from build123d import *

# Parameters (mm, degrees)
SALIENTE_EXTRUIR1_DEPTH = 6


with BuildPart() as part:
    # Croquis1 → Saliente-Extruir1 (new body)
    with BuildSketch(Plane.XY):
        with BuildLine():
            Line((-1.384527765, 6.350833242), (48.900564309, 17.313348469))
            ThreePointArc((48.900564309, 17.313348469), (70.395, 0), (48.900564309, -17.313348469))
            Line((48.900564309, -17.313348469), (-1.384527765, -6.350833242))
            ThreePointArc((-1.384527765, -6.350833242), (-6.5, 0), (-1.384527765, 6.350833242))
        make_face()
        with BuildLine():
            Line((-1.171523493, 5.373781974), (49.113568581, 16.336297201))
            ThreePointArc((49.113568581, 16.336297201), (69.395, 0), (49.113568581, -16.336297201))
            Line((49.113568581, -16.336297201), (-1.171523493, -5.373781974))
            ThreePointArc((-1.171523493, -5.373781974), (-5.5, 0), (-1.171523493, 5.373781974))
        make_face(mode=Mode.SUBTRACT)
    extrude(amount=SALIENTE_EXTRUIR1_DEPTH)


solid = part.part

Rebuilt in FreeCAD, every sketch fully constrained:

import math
import FreeCAD as App
import Part
import Sketcher

V = App.Vector
Q = App.Units.Quantity

doc = App.newDocument("Part")
body = doc.addObject("PartDesign::Body", "Body")

sketch1 = body.newObject("Sketcher::SketchObject", "Sketch")
sketch1.AttachmentSupport = (doc.getObject("XY_Plane"), [""])
sketch1.MapMode = "FlatFace"
sketch1.addGeometry([
    Part.LineSegment(V(49, 17, 0), V(-1, 6, 0)),
    Part.ArcOfCircle(Part.Circle(V(0, 0, 0), V(0, 0, 1), 6), math.radians(102), math.radians(258)),
    Part.LineSegment(V(-1, -6, 0), V(49, -17, 0)),
    Part.ArcOfCircle(Part.Circle(V(53, 0, 0), V(0, 0, 1), 18), math.radians(-102), math.radians(102)),
    Part.LineSegment(V(-1, 5, 0), V(49, 16, 0)),
    Part.ArcOfCircle(Part.Circle(V(53, 0, 0), V(0, 0, 1), 17), math.radians(-102), math.radians(102)),
    Part.LineSegment(V(49, -16, 0), V(-1, -5, 0)),
    Part.ArcOfCircle(Part.Circle(V(0, 0, 0), V(0, 0, 1), 6), math.radians(102), math.radians(258)),
], False)
sketch1.addConstraint([
    Sketcher.Constraint("Tangent", 0, 2, 1, 1),
    Sketcher.Constraint("Tangent", 1, 2, 2, 1),
    Sketcher.Constraint("Tangent", 2, 2, 3, 1),
    Sketcher.Constraint("Tangent", 3, 2, 0, 1),
    Sketcher.Constraint("Tangent", 4, 2, 5, 2),
    Sketcher.Constraint("Tangent", 5, 1, 6, 1),
    Sketcher.Constraint("Tangent", 6, 2, 7, 2),
    Sketcher.Constraint("Tangent", 7, 1, 4, 1),
    Sketcher.Constraint("Coincident", 1, 3, -1, 1),
    Sketcher.Constraint("Coincident", 7, 3, -1, 1),
    Sketcher.Constraint("Coincident", 5, 3, 3, 3),
    Sketcher.Constraint("PointOnObject", 3, 3, -1),
    Sketcher.Constraint("Parallel", 0, 4),
    Sketcher.Constraint("Radius", 1, Q("6.5 mm")),
    Sketcher.Constraint("Radius", 7, Q("5.5 mm")),
    Sketcher.Constraint("Radius", 3, Q("17.72 mm")),
    Sketcher.Constraint("DistanceX", -1, 1, 3, 3, Q("52.675 mm")),
])
pad1 = body.newObject("PartDesign::Pad", "Pad")
pad1.Profile = sketch1
pad1.Length = 6

doc.recompute()
